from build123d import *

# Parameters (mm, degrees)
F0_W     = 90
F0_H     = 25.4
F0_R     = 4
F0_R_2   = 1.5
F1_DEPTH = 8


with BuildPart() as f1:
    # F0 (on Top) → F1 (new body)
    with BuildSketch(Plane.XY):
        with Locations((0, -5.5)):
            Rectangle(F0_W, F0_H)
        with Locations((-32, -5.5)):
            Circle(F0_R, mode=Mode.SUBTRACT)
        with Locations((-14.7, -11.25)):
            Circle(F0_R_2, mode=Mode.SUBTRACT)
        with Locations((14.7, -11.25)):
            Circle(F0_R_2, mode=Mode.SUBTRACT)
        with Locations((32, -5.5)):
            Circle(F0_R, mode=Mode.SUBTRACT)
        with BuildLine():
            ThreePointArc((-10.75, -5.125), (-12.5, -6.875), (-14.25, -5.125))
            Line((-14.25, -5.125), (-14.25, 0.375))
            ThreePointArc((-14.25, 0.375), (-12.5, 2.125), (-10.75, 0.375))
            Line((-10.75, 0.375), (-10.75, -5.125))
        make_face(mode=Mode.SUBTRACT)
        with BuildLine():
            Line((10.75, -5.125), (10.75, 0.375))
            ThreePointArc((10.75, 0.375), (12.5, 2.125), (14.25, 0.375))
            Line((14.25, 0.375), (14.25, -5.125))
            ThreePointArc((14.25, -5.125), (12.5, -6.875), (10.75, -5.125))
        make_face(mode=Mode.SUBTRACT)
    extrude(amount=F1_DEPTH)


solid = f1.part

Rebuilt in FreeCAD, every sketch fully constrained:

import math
import FreeCAD as App
import Part
import Sketcher

V = App.Vector

doc = App.newDocument("Part")
body = doc.addObject("PartDesign::Body", "Body")

# Sketch on XY plane
sketch1 = doc.addObject("Sketcher::SketchObject", "Sketch")
body.addObject(sketch1)
sketch1.AttachmentSupport = (doc.XY_Plane, [""])
sketch1.MapMode = "FlatFace"
sketch1.addGeometry(Part.LineSegment(V(-45, 7.2, 0), V(-45, -18.2, 0)), False)
sketch1.addGeometry(Part.LineSegment(V(-45, -18.2, 0), V(45, -18.2, 0)), False)
sketch1.addGeometry(Part.LineSegment(V(45, -18.2, 0), V(45, 7.2, 0)), False)
sketch1.addGeometry(Part.LineSegment(V(45, 7.2, 0), V(-45, 7.2, 0)), False)
sketch1.addGeometry(Part.Circle(V(-14.7, -11.2, 0), V(0, 0, 1), 1.5), False)
sketch1.addGeometry(Part.Circle(V(-32, -5.5, 0), V(0, 0, 1), 4), False)
sketch1.addGeometry(Part.Circle(V(14.7, -11.2, 0), V(0, 0, 1), 1.5), False)
sketch1.addGeometry(Part.Circle(V(32, -5.5, 0), V(0, 0, 1), 4), False)
sketch1.addGeometry(Part.LineSegment(V(-10.8, 0.4, 0), V(-10.8, -5.1, 0)), False)
sketch1.addGeometry(Part.ArcOfCircle(Part.Circle(V(-12.5, -5.1, 0), V(0, 0, 1), 1.8), math.radians(180), math.radians(360)), False)
sketch1.addGeometry(Part.LineSegment(V(-14.2, -5.1, 0), V(-14.2, 0.4, 0)), False)
sketch1.addGeometry(Part.ArcOfCircle(Part.Circle(V(-12.5, 0.4, 0), V(0, 0, 1), 1.8), math.radians(0), math.radians(180)), False)
sketch1.addGeometry(Part.ArcOfCircle(Part.Circle(V(12.5, -5.1, 0), V(0, 0, 1), 1.8), math.radians(180), math.radians(360)), False)
sketch1.addGeometry(Part.LineSegment(V(10.8, -5.1, 0), V(10.8, 0.4, 0)), False)
sketch1.addGeometry(Part.ArcOfCircle(Part.Circle(V(12.5, 0.4, 0), V(0, 0, 1), 1.8), math.radians(0), math.radians(180)), False)
sketch1.addGeometry(Part.LineSegment(V(14.2, 0.4, 0), V(14.2, -5.1, 0)), False)
sketch1.addConstraint(Sketcher.Constraint("Coincident", 0, 2, 1, 1))
sketch1.addConstraint(Sketcher.Constraint("Coincident", 1, 2, 2, 1))
sketch1.addConstraint(Sketcher.Constraint("Coincident", 2, 2, 3, 1))
sketch1.addConstraint(Sketcher.Constraint("Coincident", 3, 2, 0, 1))
sketch1.addConstraint(Sketcher.Constraint("Tangent", 8, 2, 9, 2))
sketch1.addConstraint(Sketcher.Constraint("Tangent", 9, 1, 10, 1))
sketch1.addConstraint(Sketcher.Constraint("Tangent", 10, 2, 11, 2))
sketch1.addConstraint(Sketcher.Constraint("Tangent", 11, 1, 8, 1))
sketch1.addConstraint(Sketcher.Constraint("Tangent", 12, 1, 13, 1))
sketch1.addConstraint(Sketcher.Constraint("Tangent", 13, 2, 14, 2))
sketch1.addConstraint(Sketcher.Constraint("Tangent", 14, 1, 15, 1))
sketch1.addConstraint(Sketcher.Constraint("Tangent", 15, 2, 12, 2))
sketch1.addConstraint(Sketcher.Constraint("Vertical", 0))
sketch1.addConstraint(Sketcher.Constraint("Horizontal", 1))
sketch1.addConstraint(Sketcher.Constraint("Vertical", 2))
sketch1.addConstraint(Sketcher.Constraint("Horizontal", 3))
sketch1.addConstraint(Sketcher.Constraint("Vertical", 8))
sketch1.addConstraint(Sketcher.Constraint("Vertical", 10))
sketch1.addConstraint(Sketcher.Constraint("Vertical", 13))
sketch1.addConstraint(Sketcher.Constraint("Vertical", 15))
sketch1.addConstraint(Sketcher.Constraint("Equal", 4, 6))
sketch1.addConstraint(Sketcher.Constraint("Equal", 5, 7))
sketch1.addConstraint(Sketcher.Constraint("Equal", 11, 12))
sketch1.addConstraint(Sketcher.Constraint("Symmetric", 4, 3, 6, 3, -2))
sketch1.addConstraint(Sketcher.Constraint("Symmetric", 5, 3, 7, 3, -2))
sketch1.addConstraint(Sketcher.Constraint("Symmetric", 9, 3, 12, 3, -2))
sketch1.addConstraint(Sketcher.Constraint("Horizontal", 11, 3, 14, 3))
sketch1.addConstraint(Sketcher.Constraint("Diameter", 4, 3.0))
sketch1.addConstraint(Sketcher.Constraint("Diameter", 5, 8.0))
sketch1.addConstraint(Sketcher.Constraint("DistanceX", 1, 1, 1, 2, 90.0))
sketch1.addConstraint(Sketcher.Constraint("Radius", 9, 1.75))
sketch1.addConstraint(Sketcher.Constraint("DistanceY", 0, 2, 0, 1, 25.4))
sketch1.addConstraint(Sketcher.Constraint("DistanceY", 8, 2, 8, 1, 5.5))
sketch1.addConstraint(Sketcher.Constraint("DistanceX", 5, 3, -1, 1, 32.0))
sketch1.addConstraint(Sketcher.Constraint("DistanceX", 0, 2, -1, 1, 45.0))
sketch1.addConstraint(Sketcher.Constraint("DistanceX", 9, 3, 12, 3, 25.0))
sketch1.addConstraint(Sketcher.Constraint("DistanceX", 4, 3, -1, 1, 14.7))
sketch1.addConstraint(Sketcher.Constraint("DistanceY", 5, 3, -1, 1, 5.5))
sketch1.addConstraint(Sketcher.Constraint("DistanceY", 0, 2, -1, 1, 18.2))
sketch1.addConstraint(Sketcher.Constraint("DistanceY", 4, 3, -1, 1, 11.25))
sketch1.addConstraint(Sketcher.Constraint("DistanceY", 9, 3, -1, 1, 5.125))
pad1 = doc.addObject("PartDesign::Pad", "Pad")
body.addObject(pad1)
pad1.Profile = sketch1
pad1.Length = 8

doc.recompute()
